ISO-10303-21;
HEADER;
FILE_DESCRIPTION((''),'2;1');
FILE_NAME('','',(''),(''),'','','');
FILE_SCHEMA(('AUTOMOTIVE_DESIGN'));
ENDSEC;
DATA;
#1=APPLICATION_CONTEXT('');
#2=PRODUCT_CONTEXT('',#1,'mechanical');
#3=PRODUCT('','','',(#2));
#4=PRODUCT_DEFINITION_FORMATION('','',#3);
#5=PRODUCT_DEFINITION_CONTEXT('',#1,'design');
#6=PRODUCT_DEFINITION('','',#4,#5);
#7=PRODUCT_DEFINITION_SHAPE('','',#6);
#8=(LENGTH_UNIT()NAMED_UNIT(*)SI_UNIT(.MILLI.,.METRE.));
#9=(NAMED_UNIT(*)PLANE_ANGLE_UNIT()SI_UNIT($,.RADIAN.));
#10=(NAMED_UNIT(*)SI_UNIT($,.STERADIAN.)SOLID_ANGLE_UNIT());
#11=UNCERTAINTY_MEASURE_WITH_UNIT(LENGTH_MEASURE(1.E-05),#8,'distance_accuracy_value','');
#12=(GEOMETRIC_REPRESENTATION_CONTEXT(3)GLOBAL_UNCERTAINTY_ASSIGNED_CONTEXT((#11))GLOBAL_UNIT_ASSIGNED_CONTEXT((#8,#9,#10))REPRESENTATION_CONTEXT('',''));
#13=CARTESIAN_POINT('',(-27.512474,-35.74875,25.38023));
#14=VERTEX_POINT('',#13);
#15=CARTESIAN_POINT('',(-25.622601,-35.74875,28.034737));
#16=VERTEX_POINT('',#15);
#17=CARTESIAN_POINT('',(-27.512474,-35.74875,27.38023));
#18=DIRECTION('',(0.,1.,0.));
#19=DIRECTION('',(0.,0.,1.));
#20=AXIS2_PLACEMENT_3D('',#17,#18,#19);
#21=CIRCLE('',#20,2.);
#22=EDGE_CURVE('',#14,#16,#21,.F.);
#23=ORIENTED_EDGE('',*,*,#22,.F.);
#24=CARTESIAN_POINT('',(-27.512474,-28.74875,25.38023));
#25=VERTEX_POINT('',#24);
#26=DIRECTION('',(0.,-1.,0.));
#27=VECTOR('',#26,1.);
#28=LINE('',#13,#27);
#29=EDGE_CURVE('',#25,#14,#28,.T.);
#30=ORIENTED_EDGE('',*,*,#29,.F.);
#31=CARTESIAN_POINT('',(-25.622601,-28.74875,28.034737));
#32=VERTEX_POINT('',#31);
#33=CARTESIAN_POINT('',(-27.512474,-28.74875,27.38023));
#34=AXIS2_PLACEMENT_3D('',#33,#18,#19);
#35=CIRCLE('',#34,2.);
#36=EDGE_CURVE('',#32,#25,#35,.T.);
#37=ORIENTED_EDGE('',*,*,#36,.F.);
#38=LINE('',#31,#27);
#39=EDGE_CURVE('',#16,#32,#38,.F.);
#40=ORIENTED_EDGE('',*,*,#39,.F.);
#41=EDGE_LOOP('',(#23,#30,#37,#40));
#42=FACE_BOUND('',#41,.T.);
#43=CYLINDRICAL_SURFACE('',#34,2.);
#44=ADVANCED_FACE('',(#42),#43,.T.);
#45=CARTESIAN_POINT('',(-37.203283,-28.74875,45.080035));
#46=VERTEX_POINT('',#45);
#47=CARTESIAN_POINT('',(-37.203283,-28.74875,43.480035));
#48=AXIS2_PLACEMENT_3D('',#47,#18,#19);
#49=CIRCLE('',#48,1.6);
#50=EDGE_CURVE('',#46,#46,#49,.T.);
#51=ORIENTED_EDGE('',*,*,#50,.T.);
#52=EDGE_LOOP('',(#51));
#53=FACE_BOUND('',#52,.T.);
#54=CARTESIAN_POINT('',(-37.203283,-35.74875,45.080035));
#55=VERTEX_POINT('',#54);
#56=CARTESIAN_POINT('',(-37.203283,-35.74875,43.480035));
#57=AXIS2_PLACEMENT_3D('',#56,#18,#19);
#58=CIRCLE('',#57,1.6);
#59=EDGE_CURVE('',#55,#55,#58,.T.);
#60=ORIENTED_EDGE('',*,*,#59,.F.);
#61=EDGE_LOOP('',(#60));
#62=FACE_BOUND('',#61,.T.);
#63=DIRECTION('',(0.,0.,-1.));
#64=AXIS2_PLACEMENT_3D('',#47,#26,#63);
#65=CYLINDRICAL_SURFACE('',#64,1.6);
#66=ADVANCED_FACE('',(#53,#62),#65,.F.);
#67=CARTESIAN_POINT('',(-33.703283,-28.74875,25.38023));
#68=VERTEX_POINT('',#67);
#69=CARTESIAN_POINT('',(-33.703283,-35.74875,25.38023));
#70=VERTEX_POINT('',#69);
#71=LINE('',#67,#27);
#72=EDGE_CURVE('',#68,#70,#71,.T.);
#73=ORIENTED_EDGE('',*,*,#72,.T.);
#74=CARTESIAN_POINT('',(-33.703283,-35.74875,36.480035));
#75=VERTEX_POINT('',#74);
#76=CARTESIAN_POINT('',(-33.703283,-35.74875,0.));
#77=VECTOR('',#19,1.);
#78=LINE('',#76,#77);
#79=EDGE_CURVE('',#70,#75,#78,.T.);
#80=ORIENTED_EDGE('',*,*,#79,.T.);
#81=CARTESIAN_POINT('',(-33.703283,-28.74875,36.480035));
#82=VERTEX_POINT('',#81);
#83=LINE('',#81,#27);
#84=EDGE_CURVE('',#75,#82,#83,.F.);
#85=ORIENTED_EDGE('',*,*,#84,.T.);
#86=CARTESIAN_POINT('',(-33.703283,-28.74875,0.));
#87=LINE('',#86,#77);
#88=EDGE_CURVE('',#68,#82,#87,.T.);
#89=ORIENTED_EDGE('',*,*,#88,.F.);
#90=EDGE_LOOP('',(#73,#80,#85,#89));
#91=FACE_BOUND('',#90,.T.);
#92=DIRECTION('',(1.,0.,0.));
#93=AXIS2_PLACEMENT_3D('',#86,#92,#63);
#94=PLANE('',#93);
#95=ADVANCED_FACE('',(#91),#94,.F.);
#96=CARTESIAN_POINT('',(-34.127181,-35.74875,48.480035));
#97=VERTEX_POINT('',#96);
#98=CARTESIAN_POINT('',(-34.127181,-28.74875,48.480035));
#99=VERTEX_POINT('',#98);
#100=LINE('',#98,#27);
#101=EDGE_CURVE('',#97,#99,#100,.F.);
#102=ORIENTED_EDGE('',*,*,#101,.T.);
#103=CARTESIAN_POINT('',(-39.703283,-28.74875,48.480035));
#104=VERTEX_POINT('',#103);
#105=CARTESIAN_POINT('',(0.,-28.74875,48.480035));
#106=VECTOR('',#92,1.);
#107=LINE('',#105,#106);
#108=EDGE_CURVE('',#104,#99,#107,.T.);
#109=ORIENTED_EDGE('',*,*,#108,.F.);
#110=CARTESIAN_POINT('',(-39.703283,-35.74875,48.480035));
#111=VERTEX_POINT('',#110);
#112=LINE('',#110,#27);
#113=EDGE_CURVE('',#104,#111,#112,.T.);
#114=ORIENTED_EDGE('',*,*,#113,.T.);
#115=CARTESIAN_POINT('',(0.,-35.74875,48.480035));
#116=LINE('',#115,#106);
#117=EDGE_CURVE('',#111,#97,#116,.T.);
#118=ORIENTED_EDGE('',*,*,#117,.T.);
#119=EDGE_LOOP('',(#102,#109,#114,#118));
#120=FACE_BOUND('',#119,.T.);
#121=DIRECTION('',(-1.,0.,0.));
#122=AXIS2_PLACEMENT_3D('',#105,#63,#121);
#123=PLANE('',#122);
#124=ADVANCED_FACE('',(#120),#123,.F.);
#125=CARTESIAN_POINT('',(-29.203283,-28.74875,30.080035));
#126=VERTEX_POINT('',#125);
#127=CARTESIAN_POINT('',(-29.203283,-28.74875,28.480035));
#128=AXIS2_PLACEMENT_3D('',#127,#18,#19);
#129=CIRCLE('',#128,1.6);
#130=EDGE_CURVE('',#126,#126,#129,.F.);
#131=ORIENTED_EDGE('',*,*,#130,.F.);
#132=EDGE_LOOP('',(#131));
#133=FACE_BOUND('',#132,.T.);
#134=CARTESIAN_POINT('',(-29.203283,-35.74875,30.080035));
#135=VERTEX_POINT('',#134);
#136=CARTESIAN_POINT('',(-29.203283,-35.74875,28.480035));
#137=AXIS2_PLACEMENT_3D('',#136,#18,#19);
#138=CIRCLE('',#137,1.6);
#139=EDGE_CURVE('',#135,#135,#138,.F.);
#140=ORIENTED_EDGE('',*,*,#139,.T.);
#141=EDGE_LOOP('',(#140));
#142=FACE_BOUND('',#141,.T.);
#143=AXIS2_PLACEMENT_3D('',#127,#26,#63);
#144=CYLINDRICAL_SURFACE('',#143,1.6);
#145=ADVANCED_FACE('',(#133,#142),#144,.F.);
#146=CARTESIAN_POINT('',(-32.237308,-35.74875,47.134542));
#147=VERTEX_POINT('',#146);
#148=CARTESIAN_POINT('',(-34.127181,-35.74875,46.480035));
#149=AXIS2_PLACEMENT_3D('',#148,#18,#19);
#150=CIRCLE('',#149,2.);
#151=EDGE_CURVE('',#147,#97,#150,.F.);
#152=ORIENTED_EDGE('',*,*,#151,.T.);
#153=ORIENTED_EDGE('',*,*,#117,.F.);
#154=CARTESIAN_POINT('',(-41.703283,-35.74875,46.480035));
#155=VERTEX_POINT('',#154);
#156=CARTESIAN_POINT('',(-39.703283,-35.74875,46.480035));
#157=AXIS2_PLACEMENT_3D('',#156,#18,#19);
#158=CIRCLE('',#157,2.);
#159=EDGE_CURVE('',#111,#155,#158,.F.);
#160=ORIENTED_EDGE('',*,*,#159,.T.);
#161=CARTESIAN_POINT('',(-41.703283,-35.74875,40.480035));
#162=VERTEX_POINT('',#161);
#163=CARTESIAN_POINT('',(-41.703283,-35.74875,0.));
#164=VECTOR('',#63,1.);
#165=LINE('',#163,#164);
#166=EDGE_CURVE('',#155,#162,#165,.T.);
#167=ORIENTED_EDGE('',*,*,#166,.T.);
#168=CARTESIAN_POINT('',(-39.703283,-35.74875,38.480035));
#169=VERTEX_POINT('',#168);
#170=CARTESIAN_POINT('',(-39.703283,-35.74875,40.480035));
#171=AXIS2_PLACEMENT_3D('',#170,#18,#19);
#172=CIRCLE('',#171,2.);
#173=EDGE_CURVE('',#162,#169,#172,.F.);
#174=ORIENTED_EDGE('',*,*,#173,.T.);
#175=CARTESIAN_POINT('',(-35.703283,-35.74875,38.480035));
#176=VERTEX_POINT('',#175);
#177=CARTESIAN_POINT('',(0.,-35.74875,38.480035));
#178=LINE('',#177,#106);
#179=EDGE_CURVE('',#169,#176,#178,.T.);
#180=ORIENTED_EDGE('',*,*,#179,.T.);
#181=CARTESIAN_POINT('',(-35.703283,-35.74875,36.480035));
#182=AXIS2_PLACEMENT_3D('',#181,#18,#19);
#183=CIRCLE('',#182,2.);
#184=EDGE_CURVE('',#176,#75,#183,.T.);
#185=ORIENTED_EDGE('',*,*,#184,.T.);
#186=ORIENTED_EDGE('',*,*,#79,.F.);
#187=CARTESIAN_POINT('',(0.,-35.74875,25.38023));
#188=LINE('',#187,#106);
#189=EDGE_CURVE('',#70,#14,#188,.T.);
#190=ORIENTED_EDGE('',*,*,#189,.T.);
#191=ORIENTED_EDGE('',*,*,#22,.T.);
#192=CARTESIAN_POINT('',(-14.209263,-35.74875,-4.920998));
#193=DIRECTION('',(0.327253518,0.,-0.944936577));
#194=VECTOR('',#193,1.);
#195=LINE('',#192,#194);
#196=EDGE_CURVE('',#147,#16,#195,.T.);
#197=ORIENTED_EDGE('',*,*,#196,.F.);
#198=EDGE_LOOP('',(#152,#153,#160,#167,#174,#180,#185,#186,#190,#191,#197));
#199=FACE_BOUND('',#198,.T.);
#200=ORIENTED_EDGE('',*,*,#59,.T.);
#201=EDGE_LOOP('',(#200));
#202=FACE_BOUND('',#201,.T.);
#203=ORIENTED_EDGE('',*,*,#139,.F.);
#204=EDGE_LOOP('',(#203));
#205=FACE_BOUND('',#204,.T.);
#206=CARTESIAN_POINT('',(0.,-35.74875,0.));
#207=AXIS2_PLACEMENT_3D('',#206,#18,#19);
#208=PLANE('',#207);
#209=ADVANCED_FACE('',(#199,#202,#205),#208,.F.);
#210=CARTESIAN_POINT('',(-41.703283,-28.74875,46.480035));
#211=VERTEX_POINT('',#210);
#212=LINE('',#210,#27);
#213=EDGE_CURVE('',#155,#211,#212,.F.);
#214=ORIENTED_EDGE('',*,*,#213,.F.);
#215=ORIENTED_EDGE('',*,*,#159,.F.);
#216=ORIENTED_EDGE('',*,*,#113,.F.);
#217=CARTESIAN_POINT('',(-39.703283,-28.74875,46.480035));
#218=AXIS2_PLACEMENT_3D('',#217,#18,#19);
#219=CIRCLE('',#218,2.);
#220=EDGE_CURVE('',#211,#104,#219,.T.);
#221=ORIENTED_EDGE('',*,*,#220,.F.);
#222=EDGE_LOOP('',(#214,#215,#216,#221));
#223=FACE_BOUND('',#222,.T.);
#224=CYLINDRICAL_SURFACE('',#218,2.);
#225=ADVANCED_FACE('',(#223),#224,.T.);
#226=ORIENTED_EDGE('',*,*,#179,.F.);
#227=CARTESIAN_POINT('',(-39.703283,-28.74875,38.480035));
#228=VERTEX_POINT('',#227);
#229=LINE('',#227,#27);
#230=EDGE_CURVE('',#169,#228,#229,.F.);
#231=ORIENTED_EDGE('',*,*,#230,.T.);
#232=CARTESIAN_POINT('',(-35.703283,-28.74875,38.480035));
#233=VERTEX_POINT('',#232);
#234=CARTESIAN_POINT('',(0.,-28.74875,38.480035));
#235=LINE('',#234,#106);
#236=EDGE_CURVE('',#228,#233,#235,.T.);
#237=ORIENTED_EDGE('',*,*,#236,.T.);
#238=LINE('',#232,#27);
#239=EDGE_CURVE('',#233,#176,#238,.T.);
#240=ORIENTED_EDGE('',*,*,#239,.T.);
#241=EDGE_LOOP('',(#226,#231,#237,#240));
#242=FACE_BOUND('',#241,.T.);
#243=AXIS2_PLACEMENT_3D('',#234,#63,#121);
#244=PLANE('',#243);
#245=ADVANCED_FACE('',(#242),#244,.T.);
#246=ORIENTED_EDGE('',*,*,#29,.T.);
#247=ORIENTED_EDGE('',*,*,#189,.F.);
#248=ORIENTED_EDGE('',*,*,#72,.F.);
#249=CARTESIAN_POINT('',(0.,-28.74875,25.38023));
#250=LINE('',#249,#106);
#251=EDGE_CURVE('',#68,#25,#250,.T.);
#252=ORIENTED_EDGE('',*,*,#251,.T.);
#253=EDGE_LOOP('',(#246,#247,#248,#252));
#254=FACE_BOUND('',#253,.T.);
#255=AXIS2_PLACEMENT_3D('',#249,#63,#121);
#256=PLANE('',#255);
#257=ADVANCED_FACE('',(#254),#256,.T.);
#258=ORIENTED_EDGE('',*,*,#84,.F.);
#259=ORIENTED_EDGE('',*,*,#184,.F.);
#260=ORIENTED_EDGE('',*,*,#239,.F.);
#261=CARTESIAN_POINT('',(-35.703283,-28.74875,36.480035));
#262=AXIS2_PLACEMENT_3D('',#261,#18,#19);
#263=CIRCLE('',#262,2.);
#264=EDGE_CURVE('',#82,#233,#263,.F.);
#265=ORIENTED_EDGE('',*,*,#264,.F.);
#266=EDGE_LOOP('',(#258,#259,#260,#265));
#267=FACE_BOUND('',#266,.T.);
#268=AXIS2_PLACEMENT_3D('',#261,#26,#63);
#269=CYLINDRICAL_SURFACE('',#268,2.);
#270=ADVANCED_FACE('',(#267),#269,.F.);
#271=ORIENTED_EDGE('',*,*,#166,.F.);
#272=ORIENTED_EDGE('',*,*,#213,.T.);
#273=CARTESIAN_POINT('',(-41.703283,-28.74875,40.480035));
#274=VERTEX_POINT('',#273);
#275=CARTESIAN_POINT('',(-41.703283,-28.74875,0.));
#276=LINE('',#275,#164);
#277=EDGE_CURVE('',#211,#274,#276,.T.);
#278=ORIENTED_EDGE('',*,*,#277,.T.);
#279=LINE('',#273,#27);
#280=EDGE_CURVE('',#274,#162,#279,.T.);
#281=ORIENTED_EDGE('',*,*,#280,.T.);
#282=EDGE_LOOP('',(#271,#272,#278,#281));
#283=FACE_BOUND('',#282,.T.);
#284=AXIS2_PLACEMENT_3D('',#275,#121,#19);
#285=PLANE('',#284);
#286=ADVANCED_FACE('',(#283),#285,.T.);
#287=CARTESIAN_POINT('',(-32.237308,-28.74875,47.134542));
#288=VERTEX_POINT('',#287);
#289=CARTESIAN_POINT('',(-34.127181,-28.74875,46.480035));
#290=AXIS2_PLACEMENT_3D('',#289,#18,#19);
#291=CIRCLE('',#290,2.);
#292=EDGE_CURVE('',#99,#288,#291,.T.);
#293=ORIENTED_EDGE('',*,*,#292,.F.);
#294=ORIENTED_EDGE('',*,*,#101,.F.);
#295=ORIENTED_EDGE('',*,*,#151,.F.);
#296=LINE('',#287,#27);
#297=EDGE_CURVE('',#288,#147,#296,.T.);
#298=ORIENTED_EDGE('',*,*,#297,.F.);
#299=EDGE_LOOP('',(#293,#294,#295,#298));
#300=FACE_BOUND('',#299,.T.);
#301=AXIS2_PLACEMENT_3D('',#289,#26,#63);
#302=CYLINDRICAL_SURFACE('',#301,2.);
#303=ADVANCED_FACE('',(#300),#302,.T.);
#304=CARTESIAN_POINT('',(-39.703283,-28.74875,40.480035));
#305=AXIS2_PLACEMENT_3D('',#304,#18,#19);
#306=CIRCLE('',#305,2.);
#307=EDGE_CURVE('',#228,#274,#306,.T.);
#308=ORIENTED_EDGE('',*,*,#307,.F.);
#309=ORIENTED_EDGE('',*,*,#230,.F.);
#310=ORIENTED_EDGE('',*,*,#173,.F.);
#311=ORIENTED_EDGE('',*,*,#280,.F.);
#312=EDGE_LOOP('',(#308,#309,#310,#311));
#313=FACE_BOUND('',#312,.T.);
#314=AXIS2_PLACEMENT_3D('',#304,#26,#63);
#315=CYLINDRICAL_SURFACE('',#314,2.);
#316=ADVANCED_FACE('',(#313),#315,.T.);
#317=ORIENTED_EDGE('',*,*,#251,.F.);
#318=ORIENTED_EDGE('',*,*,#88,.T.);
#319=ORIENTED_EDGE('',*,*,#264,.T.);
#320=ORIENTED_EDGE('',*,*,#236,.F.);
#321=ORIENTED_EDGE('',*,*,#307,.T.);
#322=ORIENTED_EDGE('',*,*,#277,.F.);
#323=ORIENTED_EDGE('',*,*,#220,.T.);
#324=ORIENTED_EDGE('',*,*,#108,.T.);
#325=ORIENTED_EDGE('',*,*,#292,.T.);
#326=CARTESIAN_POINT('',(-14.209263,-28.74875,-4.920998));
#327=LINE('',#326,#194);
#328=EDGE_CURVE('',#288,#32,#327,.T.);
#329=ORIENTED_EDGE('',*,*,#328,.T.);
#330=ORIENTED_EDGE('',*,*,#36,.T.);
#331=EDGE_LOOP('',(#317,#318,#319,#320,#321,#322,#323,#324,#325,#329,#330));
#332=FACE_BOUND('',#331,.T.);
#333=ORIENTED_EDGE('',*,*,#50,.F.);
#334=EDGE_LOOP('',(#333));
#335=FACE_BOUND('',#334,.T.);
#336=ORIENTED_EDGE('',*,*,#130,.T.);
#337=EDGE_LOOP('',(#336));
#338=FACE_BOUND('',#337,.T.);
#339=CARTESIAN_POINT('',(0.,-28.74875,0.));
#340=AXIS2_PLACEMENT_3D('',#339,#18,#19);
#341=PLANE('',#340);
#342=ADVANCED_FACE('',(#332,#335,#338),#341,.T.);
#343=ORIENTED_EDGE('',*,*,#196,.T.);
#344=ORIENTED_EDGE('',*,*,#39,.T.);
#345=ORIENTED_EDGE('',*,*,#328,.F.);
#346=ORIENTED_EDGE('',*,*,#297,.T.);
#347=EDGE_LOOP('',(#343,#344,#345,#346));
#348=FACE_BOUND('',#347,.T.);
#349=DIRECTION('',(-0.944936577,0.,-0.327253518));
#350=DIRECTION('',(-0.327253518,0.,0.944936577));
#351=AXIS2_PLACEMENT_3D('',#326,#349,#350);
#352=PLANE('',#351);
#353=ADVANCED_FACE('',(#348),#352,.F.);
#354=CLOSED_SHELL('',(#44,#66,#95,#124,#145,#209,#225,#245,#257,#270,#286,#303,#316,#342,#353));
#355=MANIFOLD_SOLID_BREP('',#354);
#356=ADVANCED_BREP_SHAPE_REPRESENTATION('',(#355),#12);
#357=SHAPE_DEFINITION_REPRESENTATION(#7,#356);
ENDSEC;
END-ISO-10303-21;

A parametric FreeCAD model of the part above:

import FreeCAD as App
import Part
import Sketcher
from FreeCAD import Vector
Q = App.Units.Quantity


def edges_at(feature, points):
    """Names of the edges that pass closest to the given points."""
    edges = feature.Shape.Edges
    near = lambda p: min(range(len(edges)), key=lambda i: edges[i].distToShape(Part.Vertex(*p))[0])
    return sorted({f"Edge{near(p) + 1}" for p in points})

doc = App.newDocument("Part")
body = doc.addObject("PartDesign::Body", "Body")

# Sketch on XZ plane
sketch1 = doc.addObject("Sketcher::SketchObject", "Sketch")
body.addObject(sketch1)
sketch1.AttachmentSupport = (doc.XZ_Plane, [""])
sketch1.MapMode = "FlatFace"
sketch1.AttachmentOffset = App.Placement(Vector(0, 0, 35.74875), App.Rotation())
sketch1.addGeometry([
    Part.LineSegment(Vector(-41.7, 38.5, 0), Vector(-41.7, 48.5, 0)),  # 0
    Part.LineSegment(Vector(-41.7, 48.5, 0), Vector(-32.7, 48.5, 0)),  # 1
    Part.LineSegment(Vector(-32.7, 48.5, 0), Vector(-24.7, 25.4, 0)),  # 2
    Part.LineSegment(Vector(-24.7, 25.4, 0), Vector(-33.7, 25.4, 0)),  # 3
    Part.LineSegment(Vector(-33.7, 25.4, 0), Vector(-33.7, 38.5, 0)),  # 4
    Part.LineSegment(Vector(-33.7, 38.5, 0), Vector(-41.7, 38.5, 0)),  # 5
    Part.Circle(Vector(-37.2, 43.5, 0), Vector(0, 0, 1), 1.6),  # 6
    Part.Circle(Vector(-29.2, 28.5, 0), Vector(0, 0, 1), 1.6),  # 7
], False)
sketch1.addConstraint([
    Sketcher.Constraint("Coincident", 0, 2, 1, 1),
    Sketcher.Constraint("Coincident", 1, 2, 2, 1),
    Sketcher.Constraint("Coincident", 2, 2, 3, 1),
    Sketcher.Constraint("Coincident", 3, 2, 4, 1),
    Sketcher.Constraint("Coincident", 4, 2, 5, 1),
    Sketcher.Constraint("Coincident", 5, 2, 0, 1),
    Sketcher.Constraint("Vertical", 0),
    Sketcher.Constraint("Horizontal", 1),
    Sketcher.Constraint("Horizontal", 3),
    Sketcher.Constraint("Vertical", 4),
    Sketcher.Constraint("Horizontal", 5),
    Sketcher.Constraint("Equal", 6, 7),
    Sketcher.Constraint("Equal", 1, 3),
    Sketcher.Constraint("Diameter", 6, Q("3.2 mm")),
    Sketcher.Constraint("DistanceX", 1, 1, 1, 2, Q("9 mm")),
    Sketcher.Constraint("DistanceX", 5, 2, 5, 1, Q("8 mm")),
    Sketcher.Constraint("DistanceY", 0, 1, 0, 2, Q("10 mm")),
    Sketcher.Constraint("DistanceX", 6, 3, 7, 3, Q("8 mm")),
    Sketcher.Constraint("DistanceY", 7, 3, 6, 3, Q("15 mm")),
    Sketcher.Constraint("DistanceY", 6, 3, 0, 2, Q("5 mm")),
    Sketcher.Constraint("DistanceX", 0, 2, 6, 3, Q("4.5 mm")),
    Sketcher.Constraint("Distance", 2, Q("24.445879 mm")),
    Sketcher.Constraint("DistanceY", -1, 1, 2, 2, Q("25.38023 mm")),
    Sketcher.Constraint("DistanceX", 6, 3, -1, 1, Q("37.203283 mm")),
])
pad1 = doc.addObject("PartDesign::Pad", "Pad")
body.addObject(pad1)
pad1.Profile = sketch1
pad1.Length = 7
pad1.Reversed = True
doc.recompute()

fillet = doc.addObject("PartDesign::Fillet", "Fillet")
body.addObject(fillet)
fillet.Base = (pad1, edges_at(pad1, [(-24.703, -32.249, 25.38)]))
fillet.Radius = 2
doc.recompute()

fillet2 = doc.addObject("PartDesign::Fillet", "Fillet001")
body.addObject(fillet2)
fillet2.Base = (fillet, edges_at(fillet, [
    (-32.703, -32.249, 48.48),
    (-41.703, -32.249, 48.48),
    (-41.703, -32.249, 38.48),
    (-33.703, -32.249, 38.48),
]))
fillet2.Radius = 2

doc.recompute()
